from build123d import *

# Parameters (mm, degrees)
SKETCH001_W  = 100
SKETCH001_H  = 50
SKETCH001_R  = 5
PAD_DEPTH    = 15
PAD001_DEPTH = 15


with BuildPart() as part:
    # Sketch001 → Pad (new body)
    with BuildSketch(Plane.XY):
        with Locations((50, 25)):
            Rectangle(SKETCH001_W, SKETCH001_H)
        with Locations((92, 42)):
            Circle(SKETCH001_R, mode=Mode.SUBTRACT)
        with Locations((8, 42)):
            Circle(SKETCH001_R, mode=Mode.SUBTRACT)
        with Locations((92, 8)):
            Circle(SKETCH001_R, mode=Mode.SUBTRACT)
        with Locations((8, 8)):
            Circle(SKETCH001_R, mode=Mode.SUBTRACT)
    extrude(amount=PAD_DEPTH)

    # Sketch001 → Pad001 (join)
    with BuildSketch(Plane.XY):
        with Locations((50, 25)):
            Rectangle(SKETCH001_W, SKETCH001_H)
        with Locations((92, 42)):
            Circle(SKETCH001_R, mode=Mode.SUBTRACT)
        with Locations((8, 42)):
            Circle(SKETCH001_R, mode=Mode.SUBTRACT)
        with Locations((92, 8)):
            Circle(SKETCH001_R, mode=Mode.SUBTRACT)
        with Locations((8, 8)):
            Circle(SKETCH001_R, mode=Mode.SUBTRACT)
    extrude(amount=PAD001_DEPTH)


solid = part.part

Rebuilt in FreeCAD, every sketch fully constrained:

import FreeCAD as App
import Part
import Sketcher

V = App.Vector
Q = App.Units.Quantity


def add_polygon(sketch, points):
    """Adds a closed chain of lines whose ends are joined by coincident constraints."""
    first, n = sketch.GeometryCount, len(points)
    for a, b in zip(points, points[1:] + points[:1]):
        sketch.addGeometry(Part.LineSegment(App.Vector(*a, 0), App.Vector(*b, 0)), False)
    for i in range(n):
        sketch.addConstraint(Sketcher.Constraint("Coincident", first + i, 2, first + (i + 1) % n, 1))

doc = App.newDocument("Part")
body = doc.addObject("PartDesign::Body", "Body")

# Sketch on XY plane
sketch1 = doc.addObject("Sketcher::SketchObject", "Sketch")
body.addObject(sketch1)
sketch1.AttachmentSupport = (doc.XY_Plane, [""])
sketch1.MapMode = "FlatFace"
add_polygon(sketch1, [(0, 50), (0, 0), (100, 0), (100, 50)])  # lines 0-3
sketch1.addGeometry(Part.Circle(V(8, 8, 0), V(0, 0, 1), 5), False)  # 4
sketch1.addGeometry(Part.Circle(V(92, 8, 0), V(0, 0, 1), 5), False)  # 5
sketch1.addGeometry(Part.Circle(V(8, 42, 0), V(0, 0, 1), 5), False)  # 6
sketch1.addGeometry(Part.Circle(V(92, 42, 0), V(0, 0, 1), 5), False)  # 7
sketch1.addConstraint([
    Sketcher.Constraint("Vertical", 0),
    Sketcher.Constraint("Horizontal", 1),
    Sketcher.Constraint("Vertical", 2),
    Sketcher.Constraint("Horizontal", 3),
    Sketcher.Constraint("Coincident", 0, 2, -1, 1),
    Sketcher.Constraint("Equal", 4, 5),
    Sketcher.Constraint("Equal", 5, 6),
    Sketcher.Constraint("Equal", 6, 7),
    Sketcher.Constraint("Horizontal", 4, 3, 5, 3),
    Sketcher.Constraint("Horizontal", 6, 3, 7, 3),
    Sketcher.Constraint("Vertical", 4, 3, 6, 3),
    Sketcher.Constraint("Vertical", 5, 3, 7, 3),
    Sketcher.Constraint("Diameter", 4, Q("10 mm")),
    Sketcher.Constraint("DistanceX", 1, 1, 1, 2, Q("100 mm")),
    Sketcher.Constraint("DistanceY", 0, 2, 0, 1, Q("50 mm")),
    Sketcher.Constraint("DistanceX", -1, 1, 4, 3, Q("8 mm")),
    Sketcher.Constraint("DistanceY", -1, 1, 4, 3, Q("8 mm")),
    Sketcher.Constraint("DistanceX", -1, 1, 5, 3, Q("92 mm")),
    Sketcher.Constraint("DistanceY", -1, 1, 6, 3, Q("42 mm")),
])
pad1 = doc.addObject("PartDesign::Pad", "Pad")
body.addObject(pad1)
pad1.Profile = sketch1
pad1.Length = 15

# Sketch on XY plane
sketch2 = doc.addObject("Sketcher::SketchObject", "Sketch001")
body.addObject(sketch2)
sketch2.AttachmentSupport = (doc.XY_Plane, [""])
sketch2.MapMode = "FlatFace"
add_polygon(sketch2, [(0, 50), (0, 0), (100, 0), (100, 50)])  # lines 0-3
sketch2.addGeometry(Part.Circle(V(8, 8, 0), V(0, 0, 1), 5), False)  # 4
sketch2.addGeometry(Part.Circle(V(92, 8, 0), V(0, 0, 1), 5), False)  # 5
sketch2.addGeometry(Part.Circle(V(8, 42, 0), V(0, 0, 1), 5), False)  # 6
sketch2.addGeometry(Part.Circle(V(92, 42, 0), V(0, 0, 1), 5), False)  # 7
sketch2.addConstraint([
    Sketcher.Constraint("Vertical", 0),
    Sketcher.Constraint("Horizontal", 1),
    Sketcher.Constraint("Vertical", 2),
    Sketcher.Constraint("Horizontal", 3),
    Sketcher.Constraint("Coincident", 0, 2, -1, 1),
    Sketcher.Constraint("Equal", 4, 5),
    Sketcher.Constraint("Equal", 5, 6),
    Sketcher.Constraint("Equal", 6, 7),
    Sketcher.Constraint("Horizontal", 4, 3, 5, 3),
    Sketcher.Constraint("Horizontal", 6, 3, 7, 3),
    Sketcher.Constraint("Vertical", 4, 3, 6, 3),
    Sketcher.Constraint("Vertical", 5, 3, 7, 3),
    Sketcher.Constraint("Diameter", 4, Q("10 mm")),
    Sketcher.Constraint("DistanceX", 1, 1, 1, 2, Q("100 mm")),
    Sketcher.Constraint("DistanceY", 0, 2, 0, 1, Q("50 mm")),
    Sketcher.Constraint("DistanceX", -1, 1, 4, 3, Q("8 mm")),
    Sketcher.Constraint("DistanceY", -1, 1, 4, 3, Q("8 mm")),
    Sketcher.Constraint("DistanceX", -1, 1, 5, 3, Q("92 mm")),
    Sketcher.Constraint("DistanceY", -1, 1, 6, 3, Q("42 mm")),
])
pad2 = doc.addObject("PartDesign::Pad", "Pad001")
body.addObject(pad2)
pad2.Profile = sketch2
pad2.Length = 15

doc.recompute()
